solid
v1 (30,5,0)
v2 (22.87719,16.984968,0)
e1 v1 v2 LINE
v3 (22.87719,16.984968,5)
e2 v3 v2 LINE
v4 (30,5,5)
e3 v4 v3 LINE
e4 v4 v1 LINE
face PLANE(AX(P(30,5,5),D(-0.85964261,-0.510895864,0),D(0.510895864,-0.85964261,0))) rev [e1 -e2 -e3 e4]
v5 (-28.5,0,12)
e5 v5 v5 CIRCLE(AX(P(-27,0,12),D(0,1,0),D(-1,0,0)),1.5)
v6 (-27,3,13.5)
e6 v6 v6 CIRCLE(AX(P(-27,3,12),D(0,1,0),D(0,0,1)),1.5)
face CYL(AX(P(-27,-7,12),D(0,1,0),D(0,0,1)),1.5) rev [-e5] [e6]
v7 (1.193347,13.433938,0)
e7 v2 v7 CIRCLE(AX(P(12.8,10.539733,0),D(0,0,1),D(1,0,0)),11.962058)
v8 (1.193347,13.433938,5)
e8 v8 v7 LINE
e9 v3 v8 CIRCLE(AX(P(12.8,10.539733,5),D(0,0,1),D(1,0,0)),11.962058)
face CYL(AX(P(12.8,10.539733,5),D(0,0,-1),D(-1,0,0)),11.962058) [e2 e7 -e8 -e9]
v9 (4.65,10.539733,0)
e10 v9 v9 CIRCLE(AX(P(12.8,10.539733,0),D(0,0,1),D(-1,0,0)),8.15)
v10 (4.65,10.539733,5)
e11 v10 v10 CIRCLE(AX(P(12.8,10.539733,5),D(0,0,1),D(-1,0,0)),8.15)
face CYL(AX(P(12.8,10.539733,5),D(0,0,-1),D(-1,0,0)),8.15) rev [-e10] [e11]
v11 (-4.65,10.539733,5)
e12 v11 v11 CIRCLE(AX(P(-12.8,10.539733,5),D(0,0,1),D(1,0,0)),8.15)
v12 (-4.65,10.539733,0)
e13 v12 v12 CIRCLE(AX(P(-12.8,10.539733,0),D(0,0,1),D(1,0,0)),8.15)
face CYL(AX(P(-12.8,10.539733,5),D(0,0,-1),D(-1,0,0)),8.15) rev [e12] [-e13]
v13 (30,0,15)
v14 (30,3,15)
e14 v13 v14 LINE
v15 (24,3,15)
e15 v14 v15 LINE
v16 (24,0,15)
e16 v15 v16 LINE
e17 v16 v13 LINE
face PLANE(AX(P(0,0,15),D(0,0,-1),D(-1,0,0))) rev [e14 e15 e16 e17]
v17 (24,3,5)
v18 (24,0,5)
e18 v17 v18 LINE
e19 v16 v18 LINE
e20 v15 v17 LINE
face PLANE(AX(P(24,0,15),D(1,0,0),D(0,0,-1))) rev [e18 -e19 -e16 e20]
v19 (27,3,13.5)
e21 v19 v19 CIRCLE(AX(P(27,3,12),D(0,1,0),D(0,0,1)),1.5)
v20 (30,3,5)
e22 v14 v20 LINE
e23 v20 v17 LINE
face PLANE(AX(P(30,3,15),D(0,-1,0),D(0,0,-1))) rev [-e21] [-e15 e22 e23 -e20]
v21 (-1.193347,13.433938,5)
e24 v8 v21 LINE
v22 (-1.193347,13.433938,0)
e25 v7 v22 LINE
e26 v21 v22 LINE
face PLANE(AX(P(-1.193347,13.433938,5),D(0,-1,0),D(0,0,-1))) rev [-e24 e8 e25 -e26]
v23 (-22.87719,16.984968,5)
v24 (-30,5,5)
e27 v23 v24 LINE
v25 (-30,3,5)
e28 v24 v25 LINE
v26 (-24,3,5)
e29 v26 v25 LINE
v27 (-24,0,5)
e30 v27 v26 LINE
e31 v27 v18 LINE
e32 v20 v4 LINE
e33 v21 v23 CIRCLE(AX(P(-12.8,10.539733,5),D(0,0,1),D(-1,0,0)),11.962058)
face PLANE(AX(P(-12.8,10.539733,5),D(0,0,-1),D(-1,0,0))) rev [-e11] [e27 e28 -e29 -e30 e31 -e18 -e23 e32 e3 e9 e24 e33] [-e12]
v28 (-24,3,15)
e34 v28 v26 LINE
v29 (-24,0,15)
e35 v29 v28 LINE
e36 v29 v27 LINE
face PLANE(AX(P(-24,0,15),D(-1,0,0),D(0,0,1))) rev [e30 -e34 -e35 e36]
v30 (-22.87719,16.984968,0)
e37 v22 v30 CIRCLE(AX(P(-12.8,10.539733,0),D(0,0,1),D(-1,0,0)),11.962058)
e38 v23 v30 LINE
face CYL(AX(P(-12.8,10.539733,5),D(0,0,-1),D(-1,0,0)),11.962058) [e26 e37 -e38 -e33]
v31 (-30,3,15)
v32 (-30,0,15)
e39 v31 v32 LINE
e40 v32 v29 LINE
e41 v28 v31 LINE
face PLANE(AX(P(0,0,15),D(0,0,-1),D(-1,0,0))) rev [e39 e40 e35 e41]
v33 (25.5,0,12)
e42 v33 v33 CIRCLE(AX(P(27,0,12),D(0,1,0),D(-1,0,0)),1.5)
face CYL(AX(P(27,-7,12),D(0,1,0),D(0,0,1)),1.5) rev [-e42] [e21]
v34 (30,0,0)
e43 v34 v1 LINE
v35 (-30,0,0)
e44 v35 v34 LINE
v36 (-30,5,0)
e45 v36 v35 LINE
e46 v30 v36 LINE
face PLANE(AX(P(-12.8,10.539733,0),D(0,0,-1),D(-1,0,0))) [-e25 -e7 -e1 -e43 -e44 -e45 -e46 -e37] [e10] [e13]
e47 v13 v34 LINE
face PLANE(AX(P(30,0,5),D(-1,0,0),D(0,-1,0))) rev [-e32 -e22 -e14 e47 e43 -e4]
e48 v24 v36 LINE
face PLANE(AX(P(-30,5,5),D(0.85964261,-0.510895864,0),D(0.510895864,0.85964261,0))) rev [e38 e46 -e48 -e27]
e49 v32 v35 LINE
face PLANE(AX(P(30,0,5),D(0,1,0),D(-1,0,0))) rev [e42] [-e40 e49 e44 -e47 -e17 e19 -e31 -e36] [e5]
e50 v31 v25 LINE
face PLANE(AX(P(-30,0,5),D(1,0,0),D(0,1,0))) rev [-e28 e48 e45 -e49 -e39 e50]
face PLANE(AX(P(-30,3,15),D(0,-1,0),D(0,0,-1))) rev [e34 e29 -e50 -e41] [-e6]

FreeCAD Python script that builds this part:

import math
import FreeCAD as App
import Part
import Sketcher


def add_polygon(sketch, points):
    """Adds a closed chain of lines whose ends are joined by coincident constraints."""
    first, n = sketch.GeometryCount, len(points)
    for a, b in zip(points, points[1:] + points[:1]):
        sketch.addGeometry(Part.LineSegment(App.Vector(*a, 0), App.Vector(*b, 0)), False)
    for i in range(n):
        sketch.addConstraint(Sketcher.Constraint("Coincident", first + i, 2, first + (i + 1) % n, 1))

doc = App.newDocument("Part")
body = doc.addObject("PartDesign::Body", "Body")

# Sketch on XY plane
sketch1 = body.newObject("Sketcher::SketchObject", "Sketch")
sketch1.AttachmentSupport = (doc.getObject("XY_Plane"), [""])
sketch1.MapMode = "FlatFace"
sketch1.addGeometry(Part.LineSegment(App.Vector(-30, 0, 0), App.Vector(30, 0, 0)), False)
sketch1.addGeometry(Part.LineSegment(App.Vector(30, 0, 0), App.Vector(30, 5, 0)), False)
sketch1.addGeometry(Part.LineSegment(App.Vector(30, 5, 0), App.Vector(22.9, 17, 0)), False)
sketch1.addGeometry(Part.ArcOfCircle(Part.Circle(App.Vector(12.8, 10.5, 0), App.Vector(0, 0, 1), 12), math.radians(33), math.radians(166)), False)
sketch1.addGeometry(Part.LineSegment(App.Vector(1.2, 13.4, 0), App.Vector(-1.2, 13.4, 0)), False)
sketch1.addGeometry(Part.ArcOfCircle(Part.Circle(App.Vector(-12.8, 10.5, 0), App.Vector(0, 0, 1), 12), math.radians(14), math.radians(147)), False)
sketch1.addGeometry(Part.LineSegment(App.Vector(-22.9, 17, 0), App.Vector(-30, 5, 0)), False)
sketch1.addGeometry(Part.LineSegment(App.Vector(-30, 5, 0), App.Vector(-30, 0, 0)), False)
sketch1.addGeometry(Part.Circle(App.Vector(12.8, 10.5, 0), App.Vector(0, 0, 1), 8.2), False)
sketch1.addGeometry(Part.Circle(App.Vector(-12.8, 10.5, 0), App.Vector(0, 0, 1), 8.2), False)
sketch1.addConstraint(Sketcher.Constraint("Coincident", 0, 2, 1, 1))
sketch1.addConstraint(Sketcher.Constraint("Coincident", 1, 2, 2, 1))
sketch1.addConstraint(Sketcher.Constraint("Coincident", 2, 2, 3, 1))
sketch1.addConstraint(Sketcher.Constraint("Coincident", 3, 2, 4, 1))
sketch1.addConstraint(Sketcher.Constraint("Coincident", 4, 2, 5, 1))
sketch1.addConstraint(Sketcher.Constraint("Coincident", 5, 2, 6, 1))
sketch1.addConstraint(Sketcher.Constraint("Coincident", 6, 2, 7, 1))
sketch1.addConstraint(Sketcher.Constraint("Coincident", 7, 2, 0, 1))
sketch1.addConstraint(Sketcher.Constraint("Horizontal", 0))
sketch1.addConstraint(Sketcher.Constraint("Vertical", 1))
sketch1.addConstraint(Sketcher.Constraint("Horizontal", 4))
sketch1.addConstraint(Sketcher.Constraint("Vertical", 7))
sketch1.addConstraint(Sketcher.Constraint("Coincident", 8, 3, 3, 3))
sketch1.addConstraint(Sketcher.Constraint("Coincident", 9, 3, 5, 3))
sketch1.addConstraint(Sketcher.Constraint("Equal", 3, 5))
sketch1.addConstraint(Sketcher.Constraint("Equal", 8, 9))
sketch1.addConstraint(Sketcher.Constraint("Symmetric", 0, 2, 7, 2, -1, 1))
sketch1.addConstraint(Sketcher.Constraint("Symmetric", 3, 3, 5, 3, -2))
sketch1.addConstraint(Sketcher.Constraint("Horizontal", 2, 2, 5, 2))
sketch1.addConstraint(Sketcher.Constraint("Horizontal", 1, 2, 6, 2))
sketch1.addConstraint(Sketcher.Constraint("Diameter", 8, 16.3))
sketch1.addConstraint(Sketcher.Constraint("DistanceX", 0, 1, 0, 2, 60.0))
sketch1.addConstraint(Sketcher.Constraint("DistanceY", 1, 1, 1, 2, 5.0))
sketch1.addConstraint(Sketcher.Constraint("DistanceX", -1, 1, 3, 3, 12.8))
sketch1.addConstraint(Sketcher.Constraint("Radius", 3, 11.962058))
sketch1.addConstraint(Sketcher.Constraint("DistanceX", 4, 2, 4, 1, 2.386694))
sketch1.addConstraint(Sketcher.Constraint("DistanceX", -1, 1, 2, 2, 22.87719))
sketch1.addConstraint(Sketcher.Constraint("DistanceY", -1, 1, 2, 2, 16.984968))
pad1 = body.newObject("PartDesign::Pad", "Pad")
pad1.Profile = sketch1
pad1.Length = 5

# Sketch on XY plane
sketch2 = body.newObject("Sketcher::SketchObject", "Sketch001")
sketch2.AttachmentSupport = (doc.getObject("XY_Plane"), [""])
sketch2.MapMode = "FlatFace"
sketch2.AttachmentOffset = App.Placement(App.Vector(0, 0, 5), App.Rotation())
add_polygon(sketch2, [(-30, 3), (-30, 0), (-24, 0), (-24, 3)])  # lines 0-3
add_polygon(sketch2, [(24, 3), (24, 0), (30, 0), (30, 3)])  # lines 4-7
sketch2.addConstraint(Sketcher.Constraint("Vertical", 0))
sketch2.addConstraint(Sketcher.Constraint("Horizontal", 1))
sketch2.addConstraint(Sketcher.Constraint("Vertical", 2))
sketch2.addConstraint(Sketcher.Constraint("Horizontal", 3))
sketch2.addConstraint(Sketcher.Constraint("Vertical", 4))
sketch2.addConstraint(Sketcher.Constraint("Horizontal", 5))
sketch2.addConstraint(Sketcher.Constraint("Vertical", 6))
sketch2.addConstraint(Sketcher.Constraint("Horizontal", 7))
sketch2.addConstraint(Sketcher.Constraint("Symmetric", 1, 2, 4, 2, -1, 1))
sketch2.addConstraint(Sketcher.Constraint("Symmetric", 0, 2, 5, 2, -2))
sketch2.addConstraint(Sketcher.Constraint("Horizontal", 3, 2, 6, 2))
sketch2.addConstraint(Sketcher.Constraint("DistanceX", 1, 1, 1, 2, 6.0))
sketch2.addConstraint(Sketcher.Constraint("DistanceY", 0, 2, 0, 1, 3.0))
sketch2.addConstraint(Sketcher.Constraint("DistanceX", 0, 2, -1, 1, 30.0))
pad2 = body.newObject("PartDesign::Pad", "Pad001")
pad2.Profile = sketch2
pad2.Length = 10

# Sketch on XZ plane
sketch3 = body.newObject("Sketcher::SketchObject", "Sketch002")
sketch3.AttachmentSupport = (doc.getObject("XZ_Plane"), [""])
sketch3.MapMode = "FlatFace"
sketch3.AttachmentOffset = App.Placement(App.Vector(0, 0, -3), App.Rotation())
sketch3.addGeometry(Part.Circle(App.Vector(-27, 12, 0), App.Vector(0, 0, 1), 1.5), False)
sketch3.addGeometry(Part.Circle(App.Vector(27, 12, 0), App.Vector(0, 0, 1), 1.5), False)
sketch3.addConstraint(Sketcher.Constraint("Equal", 0, 1))
sketch3.addConstraint(Sketcher.Constraint("Symmetric", 0, 3, 1, 3, -2))
sketch3.addConstraint(Sketcher.Constraint("Diameter", 0, 3.0))
sketch3.addConstraint(Sketcher.Constraint("DistanceX", 0, 3, -1, 1, 27.0))
sketch3.addConstraint(Sketcher.Constraint("DistanceY", -1, 1, 0, 3, 12.0))
pocket1 = body.newObject("PartDesign::Pocket", "Pocket")
pocket1.Profile = sketch3
pocket1.Length = 10
pocket1.Reversed = True

doc.recompute()
